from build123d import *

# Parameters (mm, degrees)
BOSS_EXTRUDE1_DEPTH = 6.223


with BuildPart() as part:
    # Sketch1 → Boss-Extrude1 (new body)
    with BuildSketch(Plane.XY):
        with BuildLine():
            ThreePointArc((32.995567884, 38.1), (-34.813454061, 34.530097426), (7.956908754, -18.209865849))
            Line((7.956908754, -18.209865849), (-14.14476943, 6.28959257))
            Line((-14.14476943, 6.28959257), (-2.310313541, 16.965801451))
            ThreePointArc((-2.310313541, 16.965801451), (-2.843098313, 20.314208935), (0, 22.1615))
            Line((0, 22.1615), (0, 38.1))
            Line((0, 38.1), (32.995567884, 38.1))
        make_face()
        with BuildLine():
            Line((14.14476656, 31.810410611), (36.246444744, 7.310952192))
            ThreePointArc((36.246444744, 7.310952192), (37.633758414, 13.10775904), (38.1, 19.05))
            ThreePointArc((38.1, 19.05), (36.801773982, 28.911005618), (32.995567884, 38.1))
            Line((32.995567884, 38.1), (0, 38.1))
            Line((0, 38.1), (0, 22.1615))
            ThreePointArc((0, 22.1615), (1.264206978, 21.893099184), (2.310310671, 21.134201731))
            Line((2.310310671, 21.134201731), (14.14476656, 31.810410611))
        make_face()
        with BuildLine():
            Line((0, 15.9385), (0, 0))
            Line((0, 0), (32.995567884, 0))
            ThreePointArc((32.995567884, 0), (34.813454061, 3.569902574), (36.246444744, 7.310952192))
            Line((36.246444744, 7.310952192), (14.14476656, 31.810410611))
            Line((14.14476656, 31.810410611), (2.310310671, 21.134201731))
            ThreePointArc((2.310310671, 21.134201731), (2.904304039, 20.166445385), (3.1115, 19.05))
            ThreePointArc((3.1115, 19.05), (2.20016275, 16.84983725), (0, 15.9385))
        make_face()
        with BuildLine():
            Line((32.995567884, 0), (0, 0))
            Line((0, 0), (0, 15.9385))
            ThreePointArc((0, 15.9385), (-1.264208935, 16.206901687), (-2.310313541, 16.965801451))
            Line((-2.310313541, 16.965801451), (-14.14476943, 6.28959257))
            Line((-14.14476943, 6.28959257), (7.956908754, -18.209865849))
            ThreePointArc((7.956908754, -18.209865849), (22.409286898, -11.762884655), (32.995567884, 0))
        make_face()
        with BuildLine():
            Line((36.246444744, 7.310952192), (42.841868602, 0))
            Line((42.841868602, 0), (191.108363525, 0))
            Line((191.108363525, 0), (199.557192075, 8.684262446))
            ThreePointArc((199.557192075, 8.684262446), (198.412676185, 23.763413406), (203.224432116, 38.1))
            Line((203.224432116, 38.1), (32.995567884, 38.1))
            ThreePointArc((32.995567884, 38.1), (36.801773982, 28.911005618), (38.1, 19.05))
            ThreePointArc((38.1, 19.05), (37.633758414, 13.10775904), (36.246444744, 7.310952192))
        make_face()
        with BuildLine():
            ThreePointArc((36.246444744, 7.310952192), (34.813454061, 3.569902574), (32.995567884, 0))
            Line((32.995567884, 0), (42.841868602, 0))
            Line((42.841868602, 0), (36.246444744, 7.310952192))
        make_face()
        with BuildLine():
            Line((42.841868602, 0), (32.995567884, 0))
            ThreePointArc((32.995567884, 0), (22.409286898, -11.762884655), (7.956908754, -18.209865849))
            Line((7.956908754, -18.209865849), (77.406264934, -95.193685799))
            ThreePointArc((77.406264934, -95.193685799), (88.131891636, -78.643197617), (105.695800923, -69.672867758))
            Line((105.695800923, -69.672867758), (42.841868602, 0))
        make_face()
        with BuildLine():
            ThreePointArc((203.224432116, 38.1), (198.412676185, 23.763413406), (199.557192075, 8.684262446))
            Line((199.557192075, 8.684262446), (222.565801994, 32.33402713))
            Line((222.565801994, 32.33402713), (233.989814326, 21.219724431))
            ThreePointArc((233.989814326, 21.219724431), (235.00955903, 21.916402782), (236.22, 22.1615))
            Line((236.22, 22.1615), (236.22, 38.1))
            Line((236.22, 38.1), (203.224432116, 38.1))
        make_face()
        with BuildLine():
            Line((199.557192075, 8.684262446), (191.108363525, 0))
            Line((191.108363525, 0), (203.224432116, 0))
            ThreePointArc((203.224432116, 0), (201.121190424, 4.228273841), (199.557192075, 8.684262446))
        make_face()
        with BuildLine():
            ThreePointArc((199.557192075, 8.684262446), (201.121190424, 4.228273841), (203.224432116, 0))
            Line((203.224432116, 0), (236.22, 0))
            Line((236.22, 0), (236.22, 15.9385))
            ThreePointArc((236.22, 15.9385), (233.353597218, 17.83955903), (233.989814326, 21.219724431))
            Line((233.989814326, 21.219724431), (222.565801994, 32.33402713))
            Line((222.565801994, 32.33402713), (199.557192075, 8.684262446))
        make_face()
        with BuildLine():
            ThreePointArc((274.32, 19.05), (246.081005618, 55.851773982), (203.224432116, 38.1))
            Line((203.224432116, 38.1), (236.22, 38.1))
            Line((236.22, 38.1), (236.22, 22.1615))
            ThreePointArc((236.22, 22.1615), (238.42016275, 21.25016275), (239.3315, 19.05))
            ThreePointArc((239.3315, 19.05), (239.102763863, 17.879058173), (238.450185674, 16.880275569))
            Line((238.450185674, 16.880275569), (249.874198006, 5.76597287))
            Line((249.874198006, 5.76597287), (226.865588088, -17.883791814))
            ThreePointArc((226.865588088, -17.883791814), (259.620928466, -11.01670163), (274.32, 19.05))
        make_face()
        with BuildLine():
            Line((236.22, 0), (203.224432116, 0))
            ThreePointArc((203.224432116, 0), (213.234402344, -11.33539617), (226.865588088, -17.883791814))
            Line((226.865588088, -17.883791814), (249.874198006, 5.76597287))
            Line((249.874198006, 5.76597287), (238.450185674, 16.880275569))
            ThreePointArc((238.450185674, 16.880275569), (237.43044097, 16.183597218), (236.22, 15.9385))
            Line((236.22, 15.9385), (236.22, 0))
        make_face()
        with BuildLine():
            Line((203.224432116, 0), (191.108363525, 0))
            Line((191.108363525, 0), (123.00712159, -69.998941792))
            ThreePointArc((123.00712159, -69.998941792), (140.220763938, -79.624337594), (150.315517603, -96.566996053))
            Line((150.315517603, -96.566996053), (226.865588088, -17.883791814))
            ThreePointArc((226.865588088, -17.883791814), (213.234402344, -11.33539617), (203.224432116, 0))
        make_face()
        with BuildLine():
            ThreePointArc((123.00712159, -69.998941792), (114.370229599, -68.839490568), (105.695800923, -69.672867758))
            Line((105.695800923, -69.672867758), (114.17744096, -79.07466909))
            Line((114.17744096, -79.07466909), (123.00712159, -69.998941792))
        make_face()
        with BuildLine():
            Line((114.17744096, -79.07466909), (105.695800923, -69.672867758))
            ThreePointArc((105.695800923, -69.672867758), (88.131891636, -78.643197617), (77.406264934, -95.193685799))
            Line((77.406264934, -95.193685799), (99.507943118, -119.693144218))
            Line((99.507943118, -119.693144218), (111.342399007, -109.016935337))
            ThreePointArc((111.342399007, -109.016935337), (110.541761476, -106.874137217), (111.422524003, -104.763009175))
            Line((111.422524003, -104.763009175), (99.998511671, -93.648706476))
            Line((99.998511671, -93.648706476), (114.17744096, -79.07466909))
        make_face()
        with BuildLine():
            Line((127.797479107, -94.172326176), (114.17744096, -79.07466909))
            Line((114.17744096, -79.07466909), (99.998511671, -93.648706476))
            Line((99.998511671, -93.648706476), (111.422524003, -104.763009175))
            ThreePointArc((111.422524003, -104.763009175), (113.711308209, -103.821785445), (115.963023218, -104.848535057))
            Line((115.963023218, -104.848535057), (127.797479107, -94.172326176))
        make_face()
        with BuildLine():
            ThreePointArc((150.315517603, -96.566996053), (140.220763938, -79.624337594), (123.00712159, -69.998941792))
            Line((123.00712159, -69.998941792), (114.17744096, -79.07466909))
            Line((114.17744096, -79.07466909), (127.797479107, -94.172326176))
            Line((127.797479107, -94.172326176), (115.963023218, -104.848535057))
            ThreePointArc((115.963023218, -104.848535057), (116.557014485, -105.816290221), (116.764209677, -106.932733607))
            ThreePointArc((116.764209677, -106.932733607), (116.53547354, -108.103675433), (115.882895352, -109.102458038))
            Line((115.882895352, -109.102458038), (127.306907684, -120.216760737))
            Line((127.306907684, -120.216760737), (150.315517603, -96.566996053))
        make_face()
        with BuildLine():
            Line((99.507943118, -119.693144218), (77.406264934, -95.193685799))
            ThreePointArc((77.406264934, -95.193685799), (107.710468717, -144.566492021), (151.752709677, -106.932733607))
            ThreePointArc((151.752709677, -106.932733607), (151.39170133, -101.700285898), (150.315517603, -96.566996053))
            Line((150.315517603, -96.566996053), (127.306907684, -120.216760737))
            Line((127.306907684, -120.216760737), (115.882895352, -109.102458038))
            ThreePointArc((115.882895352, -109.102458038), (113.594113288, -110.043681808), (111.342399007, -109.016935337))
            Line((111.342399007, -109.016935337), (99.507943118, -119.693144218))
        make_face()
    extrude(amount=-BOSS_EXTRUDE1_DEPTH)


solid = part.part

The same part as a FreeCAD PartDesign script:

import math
import FreeCAD as App
import Part
import Sketcher
from FreeCAD import Vector
Q = App.Units.Quantity

doc = App.newDocument("Part")
params = doc.addObject("Spreadsheet::Sheet", "Params")
for row, (alias, value) in enumerate([
    ("sketch1_radius", "1.5 in"),
    ("pad1_length", "0.245 in"),
], start=1):
    params.set(f"A{row}", alias)
    params.set(f"B{row}", "=" + value)
    params.setAlias(f"B{row}", alias)

body = doc.addObject("PartDesign::Body", "Body")

sketch1 = body.newObject("Sketcher::SketchObject", "Sketch")
sketch1.AttachmentSupport = (doc.getObject("XY_Plane"), [""])
sketch1.MapMode = "FlatFace"
sketch1.addGeometry([
    Part.LineSegment(Vector(150.3, -96.6, 0), Vector(226.9, -17.9, 0)),
    Part.ArcOfCircle(Part.Circle(Vector(236.2, 19.1, 0), Vector(0, 0, 1), 38.1), math.radians(-104), math.radians(150)),
    Part.LineSegment(Vector(203.2, 38.1, 0), Vector(33, 38.1, 0)),
    Part.ArcOfCircle(Part.Circle(Vector(0, 19.1, 0), Vector(0, 0, 1), 38.1), math.radians(30), math.radians(282)),
    Part.LineSegment(Vector(8, -18.2, 0), Vector(77.4, -95.2, 0)),
    Part.ArcOfCircle(Part.Circle(Vector(113.7, -106.9, 0), Vector(0, 0, 1), 38.1), math.radians(162), math.radians(360)),
    Part.ArcOfCircle(Part.Circle(Vector(113.7, -106.9, 0), Vector(0, 0, 1), 38.1), math.radians(0), math.radians(15.79)),
    Part.ArcOfCircle(Part.Circle(Vector(113.7, -106.9, 0), Vector(0, 0, 1), 3.1), math.radians(42), math.radians(136)),
    Part.ArcOfCircle(Part.Circle(Vector(113.7, -106.9, 0), Vector(0, 0, 1), 3.1), math.radians(0), math.radians(42)),
    Part.ArcOfCircle(Part.Circle(Vector(113.7, -106.9, 0), Vector(0, 0, 1), 3.1), math.radians(-44), math.radians(0)),
    Part.ArcOfCircle(Part.Circle(Vector(113.7, -106.9, 0), Vector(0, 0, 1), 3.1), math.radians(-138), math.radians(-44)),
    Part.ArcOfCircle(Part.Circle(Vector(113.7, -106.9, 0), Vector(0, 0, 1), 3.1), math.radians(136), math.radians(222)),
    Part.LineSegment(Vector(191.1, 0, 0), Vector(123, -70, 0)),
    Part.ArcOfCircle(Part.Circle(Vector(113.7, -106.9, 0), Vector(0, 0, 1), 38.1), math.radians(76), math.radians(102)),
    Part.LineSegment(Vector(105.7, -69.7, 0), Vector(42.8, 0, 0)),
    Part.LineSegment(Vector(42.8, 0, 0), Vector(191.1, 0, 0)),
    Part.ArcOfCircle(Part.Circle(Vector(0, 19.1, 0), Vector(0, 0, 1), 3.1), math.radians(90), math.radians(222)),
    Part.ArcOfCircle(Part.Circle(Vector(0, 19.1, 0), Vector(0, 0, 1), 3.1), math.radians(42), math.radians(90)),
    Part.ArcOfCircle(Part.Circle(Vector(0, 19, 0), Vector(0, 0, 1), 3.1), math.radians(0), math.radians(42)),
    Part.ArcOfCircle(Part.Circle(Vector(0, 19, 0), Vector(0, 0, 1), 3.1), math.radians(-90), math.radians(0)),
    Part.ArcOfCircle(Part.Circle(Vector(0, 19.1, 0), Vector(0, 0, 1), 3.1), math.radians(-138), math.radians(-90)),
    Part.ArcOfCircle(Part.Circle(Vector(236.2, 19.1, 0), Vector(0, 0, 1), 3.1), math.radians(136), math.radians(270)),
    Part.ArcOfCircle(Part.Circle(Vector(236.2, 19.1, 0), Vector(0, 0, 1), 3.1), math.radians(90), math.radians(136)),
    Part.ArcOfCircle(Part.Circle(Vector(236.2, 19.1, 0), Vector(0, 0, 1), 3.1), math.radians(0), math.radians(90)),
    Part.ArcOfCircle(Part.Circle(Vector(236.2, 19, 0), Vector(0, 0, 1), 3.1), math.radians(-44), math.radians(0)),
    Part.ArcOfCircle(Part.Circle(Vector(236.2, 19, 0), Vector(0, 0, 1), 3.1), math.radians(-90), math.radians(-44)),
], False)
sketch1.addConstraint([
    Sketcher.Constraint("Coincident", 0, 2, 1, 1),
    Sketcher.Constraint("Coincident", 1, 2, 2, 1),
    Sketcher.Constraint("Coincident", 2, 2, 3, 1),
    Sketcher.Constraint("Coincident", 3, 2, 4, 1),
    Sketcher.Constraint("Coincident", 4, 2, 5, 1),
    Sketcher.Constraint("Tangent", 5, 2, 6, 1),
    Sketcher.Constraint("Coincident", 6, 2, 0, 1),
    Sketcher.Constraint("Tangent", 7, 1, 8, 2),
    Sketcher.Constraint("Tangent", 8, 1, 9, 2),
    Sketcher.Constraint("Tangent", 9, 1, 10, 2),
    Sketcher.Constraint("Tangent", 10, 1, 11, 2),
    Sketcher.Constraint("Tangent", 11, 1, 7, 2),
    Sketcher.Constraint("Coincident", 12, 2, 13, 1),
    Sketcher.Constraint("Coincident", 13, 2, 14, 1),
    Sketcher.Constraint("Coincident", 14, 2, 15, 1),
    Sketcher.Constraint("Coincident", 15, 2, 12, 1),
    Sketcher.Constraint("Tangent", 16, 1, 17, 2),
    Sketcher.Constraint("Tangent", 17, 1, 18, 2),
    Sketcher.Constraint("Tangent", 18, 1, 19, 2),
    Sketcher.Constraint("Tangent", 19, 1, 20, 2),
    Sketcher.Constraint("Tangent", 20, 1, 16, 2),
    Sketcher.Constraint("Tangent", 21, 1, 22, 2),
    Sketcher.Constraint("Tangent", 22, 1, 23, 2),
    Sketcher.Constraint("Tangent", 23, 1, 24, 2),
    Sketcher.Constraint("Tangent", 24, 1, 25, 2),
    Sketcher.Constraint("Tangent", 25, 1, 21, 2),
    Sketcher.Constraint("Horizontal", 2),
    Sketcher.Constraint("Horizontal", 15),
    Sketcher.Constraint("Coincident", 7, 3, 5, 3),
    Sketcher.Constraint("Coincident", 9, 3, 5, 3),
    Sketcher.Constraint("Coincident", 13, 3, 5, 3),
    Sketcher.Constraint("Coincident", 16, 3, 3, 3),
    Sketcher.Constraint("Coincident", 18, 3, 3, 3),
    Sketcher.Constraint("Coincident", 21, 3, 1, 3),
    Sketcher.Constraint("Coincident", 23, 3, 1, 3),
    Sketcher.Constraint("Equal", 1, 3),
    Sketcher.Constraint("Equal", 3, 5),
    Sketcher.Constraint("Equal", 5, 6),
    Sketcher.Constraint("Equal", 6, 13),
    Sketcher.Constraint("Equal", 11, 16),
    Sketcher.Constraint("Equal", 20, 21),
    Sketcher.Constraint("PointOnObject", 3, 3, -2),
    Sketcher.Constraint("PointOnObject", 14, 2, -1),
    Sketcher.Constraint("PointOnObject", 16, 1, -2),
    Sketcher.Constraint("PointOnObject", 19, 1, -2),
    Sketcher.Constraint("Parallel", 0, 12),
    Sketcher.Constraint("Parallel", 4, 14),
    Sketcher.Constraint("Horizontal", 1, 3, 3, 3),
    Sketcher.Constraint("Horizontal", 13, 3, 5, 2),
    Sketcher.Constraint("Horizontal", 5, 2, 8, 1),
    Sketcher.Constraint("Horizontal", 25, 3, 18, 1),
    Sketcher.Constraint("Horizontal", 18, 1, 23, 1),
    Sketcher.Constraint("Vertical", 25, 3, 22, 1),
    Sketcher.Constraint("Vertical", 22, 1, 25, 1),
    Sketcher.Constraint("Radius", 1, Q("1.5 in")),
    Sketcher.Constraint("DistanceX", -1, 1, 1, 3, Q("9.3 in")),
    Sketcher.Constraint("DistanceY", -1, 1, 1, 2, Q("1.5 in")),
    Sketcher.Constraint("Radius", 7, Q("0.1225 in")),
    Sketcher.Constraint("DistanceY", -1, 1, 1, 3, Q("0.75 in")),
    Sketcher.Constraint("DistanceX", -1, 1, 12, 2, Q("4.8428001 in")),
    Sketcher.Constraint("DistanceY", 5, 2, 6, 2, Q("0.4080999 in")),
    Sketcher.Constraint("DistanceX", -1, 1, 10, 1, 111.342399),
    Sketcher.Constraint("DistanceX", -1, 1, 13, 2, 105.695801),
    Sketcher.Constraint("DistanceY", -1, 1, 17, 1, 21.134202),
    Sketcher.Constraint("DistanceY", -1, 1, 20, 1, 16.965801),
    Sketcher.Constraint("DistanceY", 13, 3, 7, 1, 2.084199),
    Sketcher.Constraint("DistanceY", 10, 1, 6, 3, 2.084202),
    Sketcher.Constraint("DistanceX", 2, 2, 14, 2, 9.846301),
    Sketcher.Constraint("DistanceX", 15, 1, 15, 2, 148.266495),
    Sketcher.Constraint("DistanceX", -1, 1, 0, 2, 226.865588),
    Sketcher.Constraint("DistanceX", -1, 1, 3, 2, 7.956909),
    Sketcher.Constraint("DistanceY", 9, 1, -1, 1, 109.102458),
    Sketcher.Constraint("DistanceY", 11, 1, -1, 1, 104.763009),
    Sketcher.Constraint("DistanceX", -1, 1, 21, 1, 233.989814),
    Sketcher.Constraint("DistanceX", -1, 1, 24, 1, 238.450186),
])
sketch1.setExpression("Constraints[54]", "Params.sketch1_radius")
pad1 = body.newObject("PartDesign::Pad", "Pad")
pad1.Profile = sketch1
pad1.setExpression("Length", "Params.pad1_length")
pad1.Reversed = True

doc.recompute()
